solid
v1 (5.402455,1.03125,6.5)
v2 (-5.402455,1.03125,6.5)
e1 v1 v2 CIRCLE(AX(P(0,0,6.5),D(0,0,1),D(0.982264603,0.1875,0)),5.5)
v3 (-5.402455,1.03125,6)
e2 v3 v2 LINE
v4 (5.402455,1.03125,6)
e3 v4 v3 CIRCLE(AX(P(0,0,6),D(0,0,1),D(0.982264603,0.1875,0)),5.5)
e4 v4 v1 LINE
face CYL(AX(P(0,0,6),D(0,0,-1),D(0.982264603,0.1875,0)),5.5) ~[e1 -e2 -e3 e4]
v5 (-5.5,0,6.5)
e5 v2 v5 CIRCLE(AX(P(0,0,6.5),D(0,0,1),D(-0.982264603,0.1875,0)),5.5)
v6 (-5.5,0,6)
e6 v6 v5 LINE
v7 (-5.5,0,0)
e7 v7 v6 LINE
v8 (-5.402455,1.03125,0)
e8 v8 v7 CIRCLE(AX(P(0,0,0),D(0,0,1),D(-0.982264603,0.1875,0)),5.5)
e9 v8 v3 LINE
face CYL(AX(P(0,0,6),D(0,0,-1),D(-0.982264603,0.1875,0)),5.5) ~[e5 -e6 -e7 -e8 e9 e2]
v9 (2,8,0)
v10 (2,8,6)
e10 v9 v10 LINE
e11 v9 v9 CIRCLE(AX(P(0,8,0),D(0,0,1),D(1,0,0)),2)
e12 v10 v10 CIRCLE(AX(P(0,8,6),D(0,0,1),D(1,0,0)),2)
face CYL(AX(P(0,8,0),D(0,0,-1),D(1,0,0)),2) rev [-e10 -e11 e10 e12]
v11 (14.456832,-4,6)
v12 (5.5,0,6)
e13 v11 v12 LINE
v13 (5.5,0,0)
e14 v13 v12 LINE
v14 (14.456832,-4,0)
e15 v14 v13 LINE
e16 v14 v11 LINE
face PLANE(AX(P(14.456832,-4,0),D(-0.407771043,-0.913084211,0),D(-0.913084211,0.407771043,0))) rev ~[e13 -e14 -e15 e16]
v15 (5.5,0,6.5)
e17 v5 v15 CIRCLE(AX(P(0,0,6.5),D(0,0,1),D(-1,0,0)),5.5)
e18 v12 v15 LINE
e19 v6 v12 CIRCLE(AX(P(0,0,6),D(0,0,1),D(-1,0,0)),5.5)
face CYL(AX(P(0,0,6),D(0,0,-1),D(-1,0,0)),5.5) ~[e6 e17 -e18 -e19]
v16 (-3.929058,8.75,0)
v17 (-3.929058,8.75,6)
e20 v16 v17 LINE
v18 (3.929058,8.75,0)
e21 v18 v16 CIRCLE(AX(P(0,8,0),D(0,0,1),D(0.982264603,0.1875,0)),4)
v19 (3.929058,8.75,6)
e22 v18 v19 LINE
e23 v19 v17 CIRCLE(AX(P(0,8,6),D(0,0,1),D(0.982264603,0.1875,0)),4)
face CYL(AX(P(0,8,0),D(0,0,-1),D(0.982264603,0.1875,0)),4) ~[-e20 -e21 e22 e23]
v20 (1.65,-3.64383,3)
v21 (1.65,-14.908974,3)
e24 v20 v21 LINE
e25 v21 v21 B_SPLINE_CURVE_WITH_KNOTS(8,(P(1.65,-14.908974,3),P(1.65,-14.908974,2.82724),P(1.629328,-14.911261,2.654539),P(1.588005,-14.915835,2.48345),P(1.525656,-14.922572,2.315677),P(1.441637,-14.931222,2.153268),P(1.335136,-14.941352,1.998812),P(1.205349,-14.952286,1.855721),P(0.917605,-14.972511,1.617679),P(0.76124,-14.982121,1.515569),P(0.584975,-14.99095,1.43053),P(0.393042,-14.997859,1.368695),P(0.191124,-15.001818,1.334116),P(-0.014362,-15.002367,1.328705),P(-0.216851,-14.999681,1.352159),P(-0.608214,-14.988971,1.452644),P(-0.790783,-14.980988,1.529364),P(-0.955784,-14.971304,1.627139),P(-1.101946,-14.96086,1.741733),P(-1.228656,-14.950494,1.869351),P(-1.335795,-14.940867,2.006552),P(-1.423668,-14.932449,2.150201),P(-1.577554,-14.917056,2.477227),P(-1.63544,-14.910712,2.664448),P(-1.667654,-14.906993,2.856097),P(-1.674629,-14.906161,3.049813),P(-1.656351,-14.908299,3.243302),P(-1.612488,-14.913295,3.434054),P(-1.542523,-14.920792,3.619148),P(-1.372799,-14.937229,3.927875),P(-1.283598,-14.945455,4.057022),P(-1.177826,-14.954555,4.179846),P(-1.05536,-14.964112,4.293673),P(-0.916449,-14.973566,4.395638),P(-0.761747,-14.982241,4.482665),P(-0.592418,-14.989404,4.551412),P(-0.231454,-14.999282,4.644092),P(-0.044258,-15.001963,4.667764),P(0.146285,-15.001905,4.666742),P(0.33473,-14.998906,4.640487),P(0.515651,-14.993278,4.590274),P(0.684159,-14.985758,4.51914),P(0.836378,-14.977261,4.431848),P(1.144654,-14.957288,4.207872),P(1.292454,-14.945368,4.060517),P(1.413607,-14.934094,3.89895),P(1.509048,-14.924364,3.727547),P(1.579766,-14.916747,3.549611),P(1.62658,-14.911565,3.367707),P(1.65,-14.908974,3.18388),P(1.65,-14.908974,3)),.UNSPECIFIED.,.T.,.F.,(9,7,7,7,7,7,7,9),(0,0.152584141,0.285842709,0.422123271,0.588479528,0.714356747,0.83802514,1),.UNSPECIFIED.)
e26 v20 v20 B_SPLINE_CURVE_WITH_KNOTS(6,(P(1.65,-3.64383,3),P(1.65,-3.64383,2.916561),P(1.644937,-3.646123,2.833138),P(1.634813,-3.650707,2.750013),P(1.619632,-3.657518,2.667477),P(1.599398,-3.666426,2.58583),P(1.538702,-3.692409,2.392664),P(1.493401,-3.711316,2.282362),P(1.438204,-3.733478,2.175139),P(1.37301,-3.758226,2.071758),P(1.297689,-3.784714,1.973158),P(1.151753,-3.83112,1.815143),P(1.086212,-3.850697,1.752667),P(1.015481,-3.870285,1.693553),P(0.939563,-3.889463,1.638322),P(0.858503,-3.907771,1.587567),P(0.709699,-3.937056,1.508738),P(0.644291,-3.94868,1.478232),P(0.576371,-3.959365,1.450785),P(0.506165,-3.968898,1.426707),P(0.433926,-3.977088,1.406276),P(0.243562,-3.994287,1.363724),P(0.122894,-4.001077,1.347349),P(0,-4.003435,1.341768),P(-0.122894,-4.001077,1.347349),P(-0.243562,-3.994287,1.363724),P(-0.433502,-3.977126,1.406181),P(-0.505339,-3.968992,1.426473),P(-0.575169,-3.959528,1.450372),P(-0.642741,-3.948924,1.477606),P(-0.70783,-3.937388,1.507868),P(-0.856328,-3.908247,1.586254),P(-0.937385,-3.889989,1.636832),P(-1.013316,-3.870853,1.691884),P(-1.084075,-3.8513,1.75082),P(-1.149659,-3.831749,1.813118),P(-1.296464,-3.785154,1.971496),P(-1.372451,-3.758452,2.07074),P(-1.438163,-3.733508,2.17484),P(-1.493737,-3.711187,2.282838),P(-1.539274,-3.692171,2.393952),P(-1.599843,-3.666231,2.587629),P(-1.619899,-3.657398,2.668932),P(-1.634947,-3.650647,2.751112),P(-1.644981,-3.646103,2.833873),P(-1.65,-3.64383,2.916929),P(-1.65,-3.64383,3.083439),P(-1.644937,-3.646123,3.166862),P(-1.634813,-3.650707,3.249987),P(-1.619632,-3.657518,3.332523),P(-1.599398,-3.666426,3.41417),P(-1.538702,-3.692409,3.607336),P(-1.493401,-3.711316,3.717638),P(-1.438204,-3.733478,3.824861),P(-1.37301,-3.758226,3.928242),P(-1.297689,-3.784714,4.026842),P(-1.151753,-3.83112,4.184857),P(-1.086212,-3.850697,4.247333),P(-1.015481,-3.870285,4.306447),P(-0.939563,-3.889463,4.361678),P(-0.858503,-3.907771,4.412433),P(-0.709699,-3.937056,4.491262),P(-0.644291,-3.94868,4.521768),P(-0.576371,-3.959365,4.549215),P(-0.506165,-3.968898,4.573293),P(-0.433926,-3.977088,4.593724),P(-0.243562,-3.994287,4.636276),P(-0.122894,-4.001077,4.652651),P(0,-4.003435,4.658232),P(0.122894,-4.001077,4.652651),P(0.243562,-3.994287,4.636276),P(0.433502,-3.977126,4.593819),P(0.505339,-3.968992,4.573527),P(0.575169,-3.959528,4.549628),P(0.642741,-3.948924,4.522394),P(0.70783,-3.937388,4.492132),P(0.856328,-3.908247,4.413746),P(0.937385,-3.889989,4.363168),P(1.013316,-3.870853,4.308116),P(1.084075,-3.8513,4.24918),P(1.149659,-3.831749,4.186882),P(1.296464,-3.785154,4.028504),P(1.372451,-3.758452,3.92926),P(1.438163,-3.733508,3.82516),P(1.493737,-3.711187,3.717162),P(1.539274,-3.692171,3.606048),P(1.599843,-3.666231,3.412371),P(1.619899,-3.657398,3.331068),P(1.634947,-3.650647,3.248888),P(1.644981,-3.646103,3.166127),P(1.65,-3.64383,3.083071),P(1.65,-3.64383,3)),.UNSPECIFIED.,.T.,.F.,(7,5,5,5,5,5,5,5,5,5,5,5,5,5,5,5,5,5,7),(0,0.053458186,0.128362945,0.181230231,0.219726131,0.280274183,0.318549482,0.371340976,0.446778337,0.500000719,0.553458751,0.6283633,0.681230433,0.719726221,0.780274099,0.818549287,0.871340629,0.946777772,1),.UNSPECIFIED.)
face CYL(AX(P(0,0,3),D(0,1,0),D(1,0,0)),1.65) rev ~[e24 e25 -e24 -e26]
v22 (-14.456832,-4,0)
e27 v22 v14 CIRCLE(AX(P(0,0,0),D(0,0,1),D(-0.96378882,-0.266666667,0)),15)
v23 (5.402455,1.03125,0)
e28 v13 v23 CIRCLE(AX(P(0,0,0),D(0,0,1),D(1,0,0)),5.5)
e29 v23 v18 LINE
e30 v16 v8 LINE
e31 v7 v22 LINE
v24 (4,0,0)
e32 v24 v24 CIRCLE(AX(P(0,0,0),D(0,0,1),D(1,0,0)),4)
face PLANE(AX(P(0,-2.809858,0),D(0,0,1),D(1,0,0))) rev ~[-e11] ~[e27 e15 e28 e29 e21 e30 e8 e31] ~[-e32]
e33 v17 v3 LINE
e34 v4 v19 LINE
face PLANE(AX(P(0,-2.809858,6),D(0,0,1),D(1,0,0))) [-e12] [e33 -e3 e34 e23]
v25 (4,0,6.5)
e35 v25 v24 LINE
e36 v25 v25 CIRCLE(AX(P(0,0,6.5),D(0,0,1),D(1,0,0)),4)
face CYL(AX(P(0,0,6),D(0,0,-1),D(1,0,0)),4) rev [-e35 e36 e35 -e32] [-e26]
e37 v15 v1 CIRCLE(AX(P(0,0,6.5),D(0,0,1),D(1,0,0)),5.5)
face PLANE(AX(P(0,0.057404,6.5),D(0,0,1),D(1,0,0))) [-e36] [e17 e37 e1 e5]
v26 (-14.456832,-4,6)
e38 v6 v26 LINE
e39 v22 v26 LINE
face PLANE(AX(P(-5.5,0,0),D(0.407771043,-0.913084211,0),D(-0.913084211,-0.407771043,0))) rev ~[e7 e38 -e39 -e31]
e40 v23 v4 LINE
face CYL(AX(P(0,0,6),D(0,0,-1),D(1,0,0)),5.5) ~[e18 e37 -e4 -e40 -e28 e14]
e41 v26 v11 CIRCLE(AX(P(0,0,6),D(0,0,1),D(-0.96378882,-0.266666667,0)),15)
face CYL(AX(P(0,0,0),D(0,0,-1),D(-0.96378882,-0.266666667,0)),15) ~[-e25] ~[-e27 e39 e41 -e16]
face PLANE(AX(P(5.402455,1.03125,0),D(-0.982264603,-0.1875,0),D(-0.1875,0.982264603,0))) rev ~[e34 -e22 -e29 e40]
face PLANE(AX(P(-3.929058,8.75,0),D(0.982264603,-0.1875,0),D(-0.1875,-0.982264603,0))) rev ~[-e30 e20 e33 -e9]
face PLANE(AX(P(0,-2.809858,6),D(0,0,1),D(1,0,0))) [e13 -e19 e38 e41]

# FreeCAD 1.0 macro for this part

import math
import FreeCAD as App
import Part
import Sketcher
Q = App.Units.Quantity

doc = App.newDocument("Part")
body = doc.addObject("PartDesign::Body", "Body")

# Sketch on XY plane
sketch1 = body.newObject("Sketcher::SketchObject", "Sketch")
sketch1.AttachmentSupport = (doc.getObject("XY_Plane"), [""])
sketch1.MapMode = "FlatFace"
sketch1.addGeometry([
    Part.LineSegment(App.Vector(-5.5, 0, 0), App.Vector(-14.5, -4, 0)),  # 0
    Part.ArcOfCircle(Part.Circle(App.Vector(0, 0, 0), App.Vector(0, 0, 1), 15), math.radians(-165), math.radians(-15)),  # 1
    Part.LineSegment(App.Vector(14.5, -4, 0), App.Vector(5.5, 0, 0)),  # 2
    Part.ArcOfCircle(Part.Circle(App.Vector(0, 0, 0), App.Vector(0, 0, 1), 5.5), math.radians(0), math.radians(10.81)),  # 3
    Part.LineSegment(App.Vector(5.4, 1, 0), App.Vector(3.9, 8.8, 0)),  # 4
    Part.ArcOfCircle(Part.Circle(App.Vector(0, 8, 0), App.Vector(0, 0, 1), 4), math.radians(11), math.radians(169)),  # 5
    Part.LineSegment(App.Vector(-3.9, 8.8, 0), App.Vector(-5.4, 1, 0)),  # 6
    Part.ArcOfCircle(Part.Circle(App.Vector(0, 0, 0), App.Vector(0, 0, 1), 5.5), math.radians(169.19), math.radians(180)),  # 7
    Part.Circle(App.Vector(0, 0, 0), App.Vector(0, 0, 1), 4),  # 8
    Part.Circle(App.Vector(0, 8, 0), App.Vector(0, 0, 1), 2),  # 9
], False)
sketch1.addConstraint([
    Sketcher.Constraint("Coincident", 0, 2, 1, 1),
    Sketcher.Constraint("Coincident", 1, 2, 2, 1),
    Sketcher.Constraint("Coincident", 2, 2, 3, 1),
    Sketcher.Constraint("Tangent", 3, 2, 4, 1),
    Sketcher.Constraint("Tangent", 4, 2, 5, 1),
    Sketcher.Constraint("Tangent", 5, 2, 6, 1),
    Sketcher.Constraint("Tangent", 6, 2, 7, 1),
    Sketcher.Constraint("Coincident", 7, 2, 0, 1),
    Sketcher.Constraint("Coincident", 1, 3, -1, 1),
    Sketcher.Constraint("Coincident", 3, 3, -1, 1),
    Sketcher.Constraint("Coincident", 7, 3, -1, 1),
    Sketcher.Constraint("Coincident", 8, 3, -1, 1),
    Sketcher.Constraint("Coincident", 9, 3, 5, 3),
    Sketcher.Constraint("Equal", 3, 7),
    Sketcher.Constraint("Equal", 5, 8),
    Sketcher.Constraint("PointOnObject", 5, 3, -2),
    Sketcher.Constraint("PointOnObject", 2, 2, -1),
    Sketcher.Constraint("PointOnObject", 7, 2, -1),
    Sketcher.Constraint("Horizontal", 0, 2, 1, 2),
    Sketcher.Constraint("Diameter", 8, Q("8 mm")),
    Sketcher.Constraint("Diameter", 9, Q("4 mm")),
    Sketcher.Constraint("Radius", 1, Q("15 mm")),
    Sketcher.Constraint("Radius", 3, Q("5.5 mm")),
    Sketcher.Constraint("DistanceY", -1, 1, 5, 3, Q("8 mm")),
    Sketcher.Constraint("DistanceY", 0, 2, -1, 1, Q("4 mm")),
])
pad1 = body.newObject("PartDesign::Pad", "Pad")
pad1.Profile = sketch1
pad1.Length = 6

# Sketch on XY plane
sketch2 = body.newObject("Sketcher::SketchObject", "Sketch001")
sketch2.AttachmentSupport = (doc.getObject("XY_Plane"), [""])
sketch2.MapMode = "FlatFace"
sketch2.AttachmentOffset = App.Placement(App.Vector(0, 0, 6), App.Rotation())
sketch2.addGeometry([
    Part.ArcOfCircle(Part.Circle(App.Vector(0, 0, 0), App.Vector(0, 0, 1), 5.5), math.radians(180), math.radians(360)),  # 0
    Part.ArcOfCircle(Part.Circle(App.Vector(0, 0, 0), App.Vector(0, 0, 1), 5.5), math.radians(0), math.radians(10.81)),  # 1
    Part.ArcOfCircle(Part.Circle(App.Vector(0, 0, 0), App.Vector(0, 0, 1), 5.5), math.radians(11), math.radians(169)),  # 2
    Part.ArcOfCircle(Part.Circle(App.Vector(0, 0, 0), App.Vector(0, 0, 1), 5.5), math.radians(169.19), math.radians(180)),  # 3
    Part.Circle(App.Vector(0, 0, 0), App.Vector(0, 0, 1), 4),  # 4
], False)
sketch2.addConstraint([
    Sketcher.Constraint("Tangent", 0, 2, 1, 1),
    Sketcher.Constraint("Tangent", 1, 2, 2, 1),
    Sketcher.Constraint("Tangent", 2, 2, 3, 1),
    Sketcher.Constraint("Tangent", 3, 2, 0, 1),
    Sketcher.Constraint("Coincident", 0, 3, -1, 1),
    Sketcher.Constraint("Coincident", 4, 3, -1, 1),
    Sketcher.Constraint("Equal", 0, 1),
    Sketcher.Constraint("PointOnObject", 0, 2, -1),
    Sketcher.Constraint("PointOnObject", 3, 2, -1),
    Sketcher.Constraint("Horizontal", 1, 2, 2, 2),
    Sketcher.Constraint("Diameter", 4, Q("8 mm")),
    Sketcher.Constraint("Radius", 0, Q("5.5 mm")),
    Sketcher.Constraint("DistanceY", -1, 1, 1, 2, Q("1.03125 mm")),
])
pad2 = body.newObject("PartDesign::Pad", "Pad001")
pad2.Profile = sketch2
pad2.Length = 0.5

# Sketch on XZ plane
sketch3 = body.newObject("Sketcher::SketchObject", "Sketch002")
sketch3.AttachmentSupport = (doc.getObject("XZ_Plane"), [""])
sketch3.MapMode = "FlatFace"
sketch3.addGeometry(Part.Circle(App.Vector(0, 3, 0), App.Vector(0, 0, 1), 1.6), False)
sketch3.addConstraint([
    Sketcher.Constraint("PointOnObject", 0, 3, -2),
    Sketcher.Constraint("Diameter", 0, Q("3.3 mm")),
    Sketcher.Constraint("DistanceY", -1, 1, 0, 3, Q("3 mm")),
])
pocket1 = body.newObject("PartDesign::Pocket", "Pocket")
pocket1.Profile = sketch3
pocket1.Type = "ThroughAll"
pocket1.Reversed = True

doc.recompute()
